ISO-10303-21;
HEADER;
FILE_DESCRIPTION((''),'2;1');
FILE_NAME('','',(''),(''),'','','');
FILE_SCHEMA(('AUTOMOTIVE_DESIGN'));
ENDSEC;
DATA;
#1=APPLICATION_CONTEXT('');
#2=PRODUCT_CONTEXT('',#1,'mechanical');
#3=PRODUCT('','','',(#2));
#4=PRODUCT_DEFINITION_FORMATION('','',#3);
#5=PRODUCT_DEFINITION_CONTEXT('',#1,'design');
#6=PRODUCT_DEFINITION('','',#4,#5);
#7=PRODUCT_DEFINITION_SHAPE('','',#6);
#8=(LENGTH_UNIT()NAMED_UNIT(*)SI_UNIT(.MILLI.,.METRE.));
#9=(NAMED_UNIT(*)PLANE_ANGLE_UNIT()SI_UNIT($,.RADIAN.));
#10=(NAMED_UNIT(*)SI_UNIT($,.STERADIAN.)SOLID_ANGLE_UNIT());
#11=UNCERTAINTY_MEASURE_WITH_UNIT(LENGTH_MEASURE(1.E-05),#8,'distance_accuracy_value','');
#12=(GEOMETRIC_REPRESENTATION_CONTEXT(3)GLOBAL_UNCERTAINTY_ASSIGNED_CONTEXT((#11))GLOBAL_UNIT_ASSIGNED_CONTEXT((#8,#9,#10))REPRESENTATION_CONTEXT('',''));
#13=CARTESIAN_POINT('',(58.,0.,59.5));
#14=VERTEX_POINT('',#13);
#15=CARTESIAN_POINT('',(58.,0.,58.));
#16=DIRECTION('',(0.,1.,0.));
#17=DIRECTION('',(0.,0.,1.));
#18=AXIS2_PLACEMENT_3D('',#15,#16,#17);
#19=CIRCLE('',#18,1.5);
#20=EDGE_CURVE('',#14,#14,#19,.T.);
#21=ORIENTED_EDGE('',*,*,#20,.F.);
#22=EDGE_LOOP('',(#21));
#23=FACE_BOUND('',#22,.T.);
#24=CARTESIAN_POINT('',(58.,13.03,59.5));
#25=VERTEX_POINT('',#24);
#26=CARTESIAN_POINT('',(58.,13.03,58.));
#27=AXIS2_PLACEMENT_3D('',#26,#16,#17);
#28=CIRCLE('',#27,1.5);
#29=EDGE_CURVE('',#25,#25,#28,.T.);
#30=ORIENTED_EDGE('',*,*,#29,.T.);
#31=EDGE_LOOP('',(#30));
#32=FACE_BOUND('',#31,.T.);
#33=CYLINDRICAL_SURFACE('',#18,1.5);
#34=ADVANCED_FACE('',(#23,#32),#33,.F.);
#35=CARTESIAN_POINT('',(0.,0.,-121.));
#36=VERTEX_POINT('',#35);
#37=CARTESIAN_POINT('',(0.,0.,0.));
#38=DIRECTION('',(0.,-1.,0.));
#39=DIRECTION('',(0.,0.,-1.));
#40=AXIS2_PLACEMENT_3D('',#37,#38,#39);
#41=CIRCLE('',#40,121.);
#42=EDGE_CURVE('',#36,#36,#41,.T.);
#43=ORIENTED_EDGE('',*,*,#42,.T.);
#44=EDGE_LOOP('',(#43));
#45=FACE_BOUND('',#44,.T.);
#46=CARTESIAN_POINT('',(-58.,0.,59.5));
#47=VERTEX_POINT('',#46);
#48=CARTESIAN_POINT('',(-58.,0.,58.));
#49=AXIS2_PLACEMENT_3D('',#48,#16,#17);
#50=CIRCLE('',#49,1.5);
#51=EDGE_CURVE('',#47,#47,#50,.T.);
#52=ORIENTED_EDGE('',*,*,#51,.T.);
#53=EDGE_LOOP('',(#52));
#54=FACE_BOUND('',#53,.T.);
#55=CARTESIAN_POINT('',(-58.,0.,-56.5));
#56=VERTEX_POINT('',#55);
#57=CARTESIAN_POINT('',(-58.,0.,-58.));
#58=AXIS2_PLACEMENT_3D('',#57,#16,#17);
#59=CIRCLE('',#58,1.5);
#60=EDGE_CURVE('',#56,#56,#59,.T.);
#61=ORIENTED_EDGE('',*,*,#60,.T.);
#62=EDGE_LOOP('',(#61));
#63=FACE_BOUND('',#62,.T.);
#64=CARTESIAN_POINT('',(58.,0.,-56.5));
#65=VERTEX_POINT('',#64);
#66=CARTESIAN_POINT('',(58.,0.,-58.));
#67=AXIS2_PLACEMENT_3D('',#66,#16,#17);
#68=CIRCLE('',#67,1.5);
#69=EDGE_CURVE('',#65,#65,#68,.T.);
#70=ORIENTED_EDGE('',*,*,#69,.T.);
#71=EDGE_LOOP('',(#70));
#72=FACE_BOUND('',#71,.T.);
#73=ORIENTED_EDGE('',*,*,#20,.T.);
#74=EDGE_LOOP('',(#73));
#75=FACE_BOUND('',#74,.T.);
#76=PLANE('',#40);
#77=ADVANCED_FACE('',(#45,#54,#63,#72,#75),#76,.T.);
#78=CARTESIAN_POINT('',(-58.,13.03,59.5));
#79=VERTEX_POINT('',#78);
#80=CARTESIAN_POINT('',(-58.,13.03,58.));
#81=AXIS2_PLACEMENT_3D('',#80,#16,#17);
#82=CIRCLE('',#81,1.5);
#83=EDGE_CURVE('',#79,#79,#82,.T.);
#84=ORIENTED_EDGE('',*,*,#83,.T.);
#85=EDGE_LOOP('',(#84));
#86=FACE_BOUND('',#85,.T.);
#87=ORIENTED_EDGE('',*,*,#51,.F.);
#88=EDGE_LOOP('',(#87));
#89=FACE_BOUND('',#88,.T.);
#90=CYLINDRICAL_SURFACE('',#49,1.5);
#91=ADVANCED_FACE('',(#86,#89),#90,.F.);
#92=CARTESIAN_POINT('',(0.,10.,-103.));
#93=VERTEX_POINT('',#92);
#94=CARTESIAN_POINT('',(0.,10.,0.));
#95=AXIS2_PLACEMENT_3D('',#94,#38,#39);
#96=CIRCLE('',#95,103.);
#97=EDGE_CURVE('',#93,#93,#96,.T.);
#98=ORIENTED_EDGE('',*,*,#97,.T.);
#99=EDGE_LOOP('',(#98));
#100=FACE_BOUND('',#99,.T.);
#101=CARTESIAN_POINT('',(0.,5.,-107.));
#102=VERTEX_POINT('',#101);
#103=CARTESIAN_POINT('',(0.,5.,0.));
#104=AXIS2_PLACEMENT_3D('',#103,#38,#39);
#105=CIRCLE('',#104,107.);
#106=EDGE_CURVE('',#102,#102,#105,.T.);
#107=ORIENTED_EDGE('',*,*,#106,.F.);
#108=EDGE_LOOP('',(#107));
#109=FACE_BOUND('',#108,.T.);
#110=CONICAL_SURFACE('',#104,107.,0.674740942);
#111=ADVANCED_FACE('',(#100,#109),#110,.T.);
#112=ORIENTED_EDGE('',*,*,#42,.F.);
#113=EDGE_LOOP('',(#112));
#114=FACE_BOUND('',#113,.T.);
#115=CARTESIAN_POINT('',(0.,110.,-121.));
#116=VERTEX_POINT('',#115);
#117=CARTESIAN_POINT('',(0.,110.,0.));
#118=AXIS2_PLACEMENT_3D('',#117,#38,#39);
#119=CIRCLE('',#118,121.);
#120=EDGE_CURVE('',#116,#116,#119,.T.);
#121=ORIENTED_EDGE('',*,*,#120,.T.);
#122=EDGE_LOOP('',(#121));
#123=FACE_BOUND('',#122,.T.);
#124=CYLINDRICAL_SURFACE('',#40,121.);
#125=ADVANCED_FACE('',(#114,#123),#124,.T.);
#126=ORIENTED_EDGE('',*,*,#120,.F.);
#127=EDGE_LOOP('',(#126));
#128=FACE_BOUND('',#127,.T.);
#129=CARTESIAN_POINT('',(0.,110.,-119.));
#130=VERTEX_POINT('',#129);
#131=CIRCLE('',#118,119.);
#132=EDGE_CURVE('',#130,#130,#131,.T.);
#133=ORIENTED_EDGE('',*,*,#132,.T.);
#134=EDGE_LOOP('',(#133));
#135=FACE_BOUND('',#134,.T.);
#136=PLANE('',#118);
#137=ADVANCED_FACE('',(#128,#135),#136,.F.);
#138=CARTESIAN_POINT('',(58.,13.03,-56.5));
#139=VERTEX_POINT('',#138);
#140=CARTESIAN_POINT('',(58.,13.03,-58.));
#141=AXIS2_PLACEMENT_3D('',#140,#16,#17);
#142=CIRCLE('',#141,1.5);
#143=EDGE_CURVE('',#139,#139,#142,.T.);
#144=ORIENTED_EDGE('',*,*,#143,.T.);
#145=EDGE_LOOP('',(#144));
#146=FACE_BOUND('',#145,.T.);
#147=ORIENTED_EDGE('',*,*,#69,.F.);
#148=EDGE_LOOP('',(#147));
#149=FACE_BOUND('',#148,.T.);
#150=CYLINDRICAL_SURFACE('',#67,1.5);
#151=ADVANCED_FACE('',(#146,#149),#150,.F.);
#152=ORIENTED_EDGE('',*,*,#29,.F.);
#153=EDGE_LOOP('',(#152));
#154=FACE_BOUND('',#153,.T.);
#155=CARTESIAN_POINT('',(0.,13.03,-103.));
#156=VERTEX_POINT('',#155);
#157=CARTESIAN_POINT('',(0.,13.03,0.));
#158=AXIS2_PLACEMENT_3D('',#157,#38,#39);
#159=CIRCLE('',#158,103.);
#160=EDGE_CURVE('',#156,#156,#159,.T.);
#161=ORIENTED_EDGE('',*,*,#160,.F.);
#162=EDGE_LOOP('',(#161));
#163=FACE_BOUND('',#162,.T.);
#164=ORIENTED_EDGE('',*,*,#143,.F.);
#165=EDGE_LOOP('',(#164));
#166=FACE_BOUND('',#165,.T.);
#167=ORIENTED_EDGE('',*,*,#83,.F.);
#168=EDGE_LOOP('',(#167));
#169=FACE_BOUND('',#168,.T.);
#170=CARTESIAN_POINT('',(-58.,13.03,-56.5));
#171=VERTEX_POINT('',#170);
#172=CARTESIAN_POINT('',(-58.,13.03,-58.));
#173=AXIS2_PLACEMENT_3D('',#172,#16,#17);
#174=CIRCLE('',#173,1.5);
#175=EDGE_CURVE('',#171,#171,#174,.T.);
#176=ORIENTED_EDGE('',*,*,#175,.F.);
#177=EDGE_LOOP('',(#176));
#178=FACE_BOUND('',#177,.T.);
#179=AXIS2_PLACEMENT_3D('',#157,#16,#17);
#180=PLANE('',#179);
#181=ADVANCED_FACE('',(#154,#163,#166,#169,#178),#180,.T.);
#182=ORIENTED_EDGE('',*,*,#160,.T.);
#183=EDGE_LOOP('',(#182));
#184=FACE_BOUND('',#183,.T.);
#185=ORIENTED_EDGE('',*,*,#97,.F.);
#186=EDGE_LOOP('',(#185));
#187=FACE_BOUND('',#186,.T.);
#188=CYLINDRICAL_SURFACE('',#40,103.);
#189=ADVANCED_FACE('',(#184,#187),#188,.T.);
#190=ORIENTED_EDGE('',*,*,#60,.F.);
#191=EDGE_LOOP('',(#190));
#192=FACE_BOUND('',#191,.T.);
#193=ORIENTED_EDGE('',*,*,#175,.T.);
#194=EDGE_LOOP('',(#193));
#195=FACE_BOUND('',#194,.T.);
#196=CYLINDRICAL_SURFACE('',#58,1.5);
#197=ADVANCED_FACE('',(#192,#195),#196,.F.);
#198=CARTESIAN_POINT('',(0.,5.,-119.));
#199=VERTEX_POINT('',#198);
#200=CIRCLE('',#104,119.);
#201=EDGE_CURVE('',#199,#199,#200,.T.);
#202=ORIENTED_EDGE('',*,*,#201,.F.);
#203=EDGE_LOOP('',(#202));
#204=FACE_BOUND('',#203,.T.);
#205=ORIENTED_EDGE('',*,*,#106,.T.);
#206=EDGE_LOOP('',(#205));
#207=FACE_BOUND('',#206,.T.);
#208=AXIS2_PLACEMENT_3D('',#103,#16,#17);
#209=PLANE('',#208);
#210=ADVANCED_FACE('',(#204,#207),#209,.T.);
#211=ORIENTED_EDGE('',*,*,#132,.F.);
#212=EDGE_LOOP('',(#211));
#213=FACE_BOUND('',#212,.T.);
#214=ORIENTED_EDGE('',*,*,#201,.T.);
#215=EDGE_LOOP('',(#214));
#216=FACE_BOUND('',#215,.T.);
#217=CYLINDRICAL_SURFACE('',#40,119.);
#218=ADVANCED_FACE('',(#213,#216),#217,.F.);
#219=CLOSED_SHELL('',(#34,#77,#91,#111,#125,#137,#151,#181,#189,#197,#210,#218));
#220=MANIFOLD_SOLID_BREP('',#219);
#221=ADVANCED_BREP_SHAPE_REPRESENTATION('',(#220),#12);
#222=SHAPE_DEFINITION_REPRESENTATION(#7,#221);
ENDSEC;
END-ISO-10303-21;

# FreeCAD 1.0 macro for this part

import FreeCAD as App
import Part
import Sketcher


def add_polygon(sketch, points):
    """Adds a closed chain of lines whose ends are joined by coincident constraints."""
    first, n = sketch.GeometryCount, len(points)
    for a, b in zip(points, points[1:] + points[:1]):
        sketch.addGeometry(Part.LineSegment(App.Vector(*a, 0), App.Vector(*b, 0)), False)
    for i in range(n):
        sketch.addConstraint(Sketcher.Constraint("Coincident", first + i, 2, first + (i + 1) % n, 1))

doc = App.newDocument("Part")
params = doc.addObject("Spreadsheet::Sheet", "Params")
for row, (alias, value) in enumerate([
    ("sketch1_width", "121 mm"),
    ("sketch1_width2", "2 mm"),
    ("sketch1_width3", "12 mm"),
    ("sketch1_width4", "103 mm"),
    ("sketch1_height", "110 mm"),
    ("revolution_angle", "360 deg"),
    ("sketch2_diameter", "3 mm"),
], start=1):
    params.set(f"A{row}", alias)
    params.set(f"B{row}", "=" + value)
    params.setAlias(f"B{row}", alias)

body = doc.addObject("PartDesign::Body", "Body")

sketch1 = body.newObject("Sketcher::SketchObject", "Sketch")
sketch1.AttachmentSupport = (doc.getObject("XY_Plane"), [""])
sketch1.MapMode = "FlatFace"
add_polygon(sketch1, [(0, 13), (0, 0), (121, 0), (121, 110), (119, 110), (119, 5), (107, 5), (103, 10), (103, 13)])
sketch1.addConstraint([
    Sketcher.Constraint("Vertical", 0),
    Sketcher.Constraint("Horizontal", 1),
    Sketcher.Constraint("Vertical", 2),
    Sketcher.Constraint("Horizontal", 3),
    Sketcher.Constraint("Vertical", 4),
    Sketcher.Constraint("Horizontal", 5),
    Sketcher.Constraint("Vertical", 7),
    Sketcher.Constraint("Horizontal", 8),
    Sketcher.Constraint("Coincident", 0, 2, -1, 1),
    Sketcher.Constraint("DistanceX", 1, 1, 1, 2, 121.0),
    Sketcher.Constraint("DistanceX", 3, 2, 3, 1, 2.0),
    Sketcher.Constraint("DistanceX", 5, 2, 5, 1, 12.0),
    Sketcher.Constraint("DistanceX", 8, 2, 8, 1, 103.0),
    Sketcher.Constraint("DistanceY", 2, 1, 2, 2, 110.0),
    Sketcher.Constraint("DistanceY", 4, 2, 4, 1, 105.0),
    Sketcher.Constraint("DistanceY", -1, 1, 6, 2, 10.0),
    Sketcher.Constraint("DistanceY", 0, 2, 0, 1, 13.03),
])
sketch1.setExpression("Constraints[18]", "Params.sketch1_width")
sketch1.setExpression("Constraints[19]", "Params.sketch1_width2")
sketch1.setExpression("Constraints[20]", "Params.sketch1_width3")
sketch1.setExpression("Constraints[21]", "Params.sketch1_width4")
sketch1.setExpression("Constraints[22]", "Params.sketch1_height")
revolution = body.newObject("PartDesign::Revolution", "Revolution")
revolution.Profile = sketch1
revolution.ReferenceAxis = (sketch1, ["V_Axis"])
revolution.setExpression("Angle", "Params.revolution_angle")

sketch2 = body.newObject("Sketcher::SketchObject", "Sketch001")
sketch2.AttachmentSupport = (doc.getObject("XZ_Plane"), [""])
sketch2.MapMode = "FlatFace"
sketch2.AttachmentOffset = App.Placement(App.Vector(0, 0, -13.03), App.Rotation())
sketch2.addGeometry([
    Part.Circle(App.Vector(-58, -58, 0), App.Vector(0, 0, 1), 1.5),
    Part.Circle(App.Vector(58, -58, 0), App.Vector(0, 0, 1), 1.5),
    Part.Circle(App.Vector(58, 58, 0), App.Vector(0, 0, 1), 1.5),
    Part.Circle(App.Vector(-58, 58, 0), App.Vector(0, 0, 1), 1.5),
], False)
sketch2.addConstraint([
    Sketcher.Constraint("Equal", 0, 1),
    Sketcher.Constraint("Equal", 1, 2),
    Sketcher.Constraint("Equal", 2, 3),
    Sketcher.Constraint("Symmetric", 0, 3, 2, 3, -1, 1),
    Sketcher.Constraint("Symmetric", 1, 3, 3, 3, -1, 1),
    Sketcher.Constraint("Symmetric", 0, 3, 1, 3, -2),
    Sketcher.Constraint("Diameter", 0, 3.0),
    Sketcher.Constraint("DistanceX", 0, 3, -1, 1, 58.0),
    Sketcher.Constraint("DistanceY", 0, 3, -1, 1, 58.0),
])
sketch2.setExpression("Constraints[6]", "Params.sketch2_diameter")
pocket1 = body.newObject("PartDesign::Pocket", "Pocket")
pocket1.Profile = sketch2
pocket1.Type = "ThroughAll"
pocket1.Reversed = True

doc.recompute()
